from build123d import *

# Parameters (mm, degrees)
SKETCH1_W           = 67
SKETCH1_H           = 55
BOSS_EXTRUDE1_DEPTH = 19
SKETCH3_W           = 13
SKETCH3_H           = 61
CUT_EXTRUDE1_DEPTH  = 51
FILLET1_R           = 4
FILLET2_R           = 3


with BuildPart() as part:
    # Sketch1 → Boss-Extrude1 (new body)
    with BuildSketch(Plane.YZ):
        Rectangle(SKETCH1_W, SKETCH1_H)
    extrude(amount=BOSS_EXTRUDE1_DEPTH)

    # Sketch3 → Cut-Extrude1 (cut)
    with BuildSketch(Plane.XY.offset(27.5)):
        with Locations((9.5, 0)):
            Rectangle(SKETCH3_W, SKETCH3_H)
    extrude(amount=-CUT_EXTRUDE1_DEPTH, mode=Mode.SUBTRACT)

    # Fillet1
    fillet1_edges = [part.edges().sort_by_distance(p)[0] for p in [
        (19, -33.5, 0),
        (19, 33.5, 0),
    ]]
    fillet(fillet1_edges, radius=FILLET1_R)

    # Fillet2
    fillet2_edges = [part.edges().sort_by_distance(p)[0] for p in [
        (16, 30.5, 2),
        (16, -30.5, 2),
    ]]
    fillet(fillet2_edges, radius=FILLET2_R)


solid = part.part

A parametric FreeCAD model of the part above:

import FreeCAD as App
import Part
import Sketcher
Q = App.Units.Quantity


def edges_at(feature, points):
    """Names of the edges that pass closest to the given points."""
    edges = feature.Shape.Edges
    near = lambda p: min(range(len(edges)), key=lambda i: edges[i].distToShape(Part.Vertex(*p))[0])
    return sorted({f"Edge{near(p) + 1}" for p in points})


def add_polygon(sketch, points):
    """Adds a closed chain of lines whose ends are joined by coincident constraints."""
    first, n = sketch.GeometryCount, len(points)
    for a, b in zip(points, points[1:] + points[:1]):
        sketch.addGeometry(Part.LineSegment(App.Vector(*a, 0), App.Vector(*b, 0)), False)
    for i in range(n):
        sketch.addConstraint(Sketcher.Constraint("Coincident", first + i, 2, first + (i + 1) % n, 1))

doc = App.newDocument("Part")
body = doc.addObject("PartDesign::Body", "Body")

sketch1 = doc.addObject("Sketcher::SketchObject", "Sketch")
body.addObject(sketch1)
sketch1.AttachmentSupport = (doc.YZ_Plane, [""])
sketch1.MapMode = "FlatFace"
add_polygon(sketch1, [(-34, 28), (-34, -28), (34, -28), (34, 28)])
sketch1.addConstraint(Sketcher.Constraint("Vertical", 0))
sketch1.addConstraint(Sketcher.Constraint("Horizontal", 1))
sketch1.addConstraint(Sketcher.Constraint("Vertical", 2))
sketch1.addConstraint(Sketcher.Constraint("Horizontal", 3))
sketch1.addConstraint(Sketcher.Constraint("Symmetric", 0, 2, 2, 2, -1, 1))
sketch1.addConstraint(Sketcher.Constraint("DistanceX", 1, 1, 1, 2, Q("67 mm")))
sketch1.addConstraint(Sketcher.Constraint("DistanceY", 0, 2, 0, 1, Q("55 mm")))
pad1 = doc.addObject("PartDesign::Pad", "Pad")
body.addObject(pad1)
pad1.Profile = sketch1
pad1.Length = 19

sketch2 = doc.addObject("Sketcher::SketchObject", "Sketch001")
body.addObject(sketch2)
sketch2.AttachmentSupport = (doc.XY_Plane, [""])
sketch2.MapMode = "FlatFace"
sketch2.AttachmentOffset = App.Placement(App.Vector(0, 0, 27.5), App.Rotation())
add_polygon(sketch2, [(3, 30), (3, -30), (16, -30), (16, 30)])
sketch2.addConstraint(Sketcher.Constraint("Vertical", 0))
sketch2.addConstraint(Sketcher.Constraint("Horizontal", 1))
sketch2.addConstraint(Sketcher.Constraint("Vertical", 2))
sketch2.addConstraint(Sketcher.Constraint("Horizontal", 3))
sketch2.addConstraint(Sketcher.Constraint("DistanceX", 1, 1, 1, 2, Q("13 mm")))
sketch2.addConstraint(Sketcher.Constraint("DistanceY", 0, 2, 0, 1, Q("61 mm")))
sketch2.addConstraint(Sketcher.Constraint("DistanceX", -1, 1, 0, 2, Q("3 mm")))
sketch2.addConstraint(Sketcher.Constraint("DistanceY", 0, 2, -1, 1, Q("30.5 mm")))
pocket1 = doc.addObject("PartDesign::Pocket", "Pocket")
body.addObject(pocket1)
pocket1.Profile = sketch2
pocket1.Length = 51
doc.recompute()

fillet = doc.addObject("PartDesign::Fillet", "Fillet")
body.addObject(fillet)
fillet.Base = (pocket1, edges_at(pocket1, [(19, -33.5, 0), (19, 33.5, 0)]))
fillet.Radius = 4
doc.recompute()

fillet2 = doc.addObject("PartDesign::Fillet", "Fillet001")
body.addObject(fillet2)
fillet2.Base = (fillet, edges_at(fillet, [(16, 30.5, 2), (16, -30.5, 2)]))
fillet2.Radius = 3

doc.recompute()
